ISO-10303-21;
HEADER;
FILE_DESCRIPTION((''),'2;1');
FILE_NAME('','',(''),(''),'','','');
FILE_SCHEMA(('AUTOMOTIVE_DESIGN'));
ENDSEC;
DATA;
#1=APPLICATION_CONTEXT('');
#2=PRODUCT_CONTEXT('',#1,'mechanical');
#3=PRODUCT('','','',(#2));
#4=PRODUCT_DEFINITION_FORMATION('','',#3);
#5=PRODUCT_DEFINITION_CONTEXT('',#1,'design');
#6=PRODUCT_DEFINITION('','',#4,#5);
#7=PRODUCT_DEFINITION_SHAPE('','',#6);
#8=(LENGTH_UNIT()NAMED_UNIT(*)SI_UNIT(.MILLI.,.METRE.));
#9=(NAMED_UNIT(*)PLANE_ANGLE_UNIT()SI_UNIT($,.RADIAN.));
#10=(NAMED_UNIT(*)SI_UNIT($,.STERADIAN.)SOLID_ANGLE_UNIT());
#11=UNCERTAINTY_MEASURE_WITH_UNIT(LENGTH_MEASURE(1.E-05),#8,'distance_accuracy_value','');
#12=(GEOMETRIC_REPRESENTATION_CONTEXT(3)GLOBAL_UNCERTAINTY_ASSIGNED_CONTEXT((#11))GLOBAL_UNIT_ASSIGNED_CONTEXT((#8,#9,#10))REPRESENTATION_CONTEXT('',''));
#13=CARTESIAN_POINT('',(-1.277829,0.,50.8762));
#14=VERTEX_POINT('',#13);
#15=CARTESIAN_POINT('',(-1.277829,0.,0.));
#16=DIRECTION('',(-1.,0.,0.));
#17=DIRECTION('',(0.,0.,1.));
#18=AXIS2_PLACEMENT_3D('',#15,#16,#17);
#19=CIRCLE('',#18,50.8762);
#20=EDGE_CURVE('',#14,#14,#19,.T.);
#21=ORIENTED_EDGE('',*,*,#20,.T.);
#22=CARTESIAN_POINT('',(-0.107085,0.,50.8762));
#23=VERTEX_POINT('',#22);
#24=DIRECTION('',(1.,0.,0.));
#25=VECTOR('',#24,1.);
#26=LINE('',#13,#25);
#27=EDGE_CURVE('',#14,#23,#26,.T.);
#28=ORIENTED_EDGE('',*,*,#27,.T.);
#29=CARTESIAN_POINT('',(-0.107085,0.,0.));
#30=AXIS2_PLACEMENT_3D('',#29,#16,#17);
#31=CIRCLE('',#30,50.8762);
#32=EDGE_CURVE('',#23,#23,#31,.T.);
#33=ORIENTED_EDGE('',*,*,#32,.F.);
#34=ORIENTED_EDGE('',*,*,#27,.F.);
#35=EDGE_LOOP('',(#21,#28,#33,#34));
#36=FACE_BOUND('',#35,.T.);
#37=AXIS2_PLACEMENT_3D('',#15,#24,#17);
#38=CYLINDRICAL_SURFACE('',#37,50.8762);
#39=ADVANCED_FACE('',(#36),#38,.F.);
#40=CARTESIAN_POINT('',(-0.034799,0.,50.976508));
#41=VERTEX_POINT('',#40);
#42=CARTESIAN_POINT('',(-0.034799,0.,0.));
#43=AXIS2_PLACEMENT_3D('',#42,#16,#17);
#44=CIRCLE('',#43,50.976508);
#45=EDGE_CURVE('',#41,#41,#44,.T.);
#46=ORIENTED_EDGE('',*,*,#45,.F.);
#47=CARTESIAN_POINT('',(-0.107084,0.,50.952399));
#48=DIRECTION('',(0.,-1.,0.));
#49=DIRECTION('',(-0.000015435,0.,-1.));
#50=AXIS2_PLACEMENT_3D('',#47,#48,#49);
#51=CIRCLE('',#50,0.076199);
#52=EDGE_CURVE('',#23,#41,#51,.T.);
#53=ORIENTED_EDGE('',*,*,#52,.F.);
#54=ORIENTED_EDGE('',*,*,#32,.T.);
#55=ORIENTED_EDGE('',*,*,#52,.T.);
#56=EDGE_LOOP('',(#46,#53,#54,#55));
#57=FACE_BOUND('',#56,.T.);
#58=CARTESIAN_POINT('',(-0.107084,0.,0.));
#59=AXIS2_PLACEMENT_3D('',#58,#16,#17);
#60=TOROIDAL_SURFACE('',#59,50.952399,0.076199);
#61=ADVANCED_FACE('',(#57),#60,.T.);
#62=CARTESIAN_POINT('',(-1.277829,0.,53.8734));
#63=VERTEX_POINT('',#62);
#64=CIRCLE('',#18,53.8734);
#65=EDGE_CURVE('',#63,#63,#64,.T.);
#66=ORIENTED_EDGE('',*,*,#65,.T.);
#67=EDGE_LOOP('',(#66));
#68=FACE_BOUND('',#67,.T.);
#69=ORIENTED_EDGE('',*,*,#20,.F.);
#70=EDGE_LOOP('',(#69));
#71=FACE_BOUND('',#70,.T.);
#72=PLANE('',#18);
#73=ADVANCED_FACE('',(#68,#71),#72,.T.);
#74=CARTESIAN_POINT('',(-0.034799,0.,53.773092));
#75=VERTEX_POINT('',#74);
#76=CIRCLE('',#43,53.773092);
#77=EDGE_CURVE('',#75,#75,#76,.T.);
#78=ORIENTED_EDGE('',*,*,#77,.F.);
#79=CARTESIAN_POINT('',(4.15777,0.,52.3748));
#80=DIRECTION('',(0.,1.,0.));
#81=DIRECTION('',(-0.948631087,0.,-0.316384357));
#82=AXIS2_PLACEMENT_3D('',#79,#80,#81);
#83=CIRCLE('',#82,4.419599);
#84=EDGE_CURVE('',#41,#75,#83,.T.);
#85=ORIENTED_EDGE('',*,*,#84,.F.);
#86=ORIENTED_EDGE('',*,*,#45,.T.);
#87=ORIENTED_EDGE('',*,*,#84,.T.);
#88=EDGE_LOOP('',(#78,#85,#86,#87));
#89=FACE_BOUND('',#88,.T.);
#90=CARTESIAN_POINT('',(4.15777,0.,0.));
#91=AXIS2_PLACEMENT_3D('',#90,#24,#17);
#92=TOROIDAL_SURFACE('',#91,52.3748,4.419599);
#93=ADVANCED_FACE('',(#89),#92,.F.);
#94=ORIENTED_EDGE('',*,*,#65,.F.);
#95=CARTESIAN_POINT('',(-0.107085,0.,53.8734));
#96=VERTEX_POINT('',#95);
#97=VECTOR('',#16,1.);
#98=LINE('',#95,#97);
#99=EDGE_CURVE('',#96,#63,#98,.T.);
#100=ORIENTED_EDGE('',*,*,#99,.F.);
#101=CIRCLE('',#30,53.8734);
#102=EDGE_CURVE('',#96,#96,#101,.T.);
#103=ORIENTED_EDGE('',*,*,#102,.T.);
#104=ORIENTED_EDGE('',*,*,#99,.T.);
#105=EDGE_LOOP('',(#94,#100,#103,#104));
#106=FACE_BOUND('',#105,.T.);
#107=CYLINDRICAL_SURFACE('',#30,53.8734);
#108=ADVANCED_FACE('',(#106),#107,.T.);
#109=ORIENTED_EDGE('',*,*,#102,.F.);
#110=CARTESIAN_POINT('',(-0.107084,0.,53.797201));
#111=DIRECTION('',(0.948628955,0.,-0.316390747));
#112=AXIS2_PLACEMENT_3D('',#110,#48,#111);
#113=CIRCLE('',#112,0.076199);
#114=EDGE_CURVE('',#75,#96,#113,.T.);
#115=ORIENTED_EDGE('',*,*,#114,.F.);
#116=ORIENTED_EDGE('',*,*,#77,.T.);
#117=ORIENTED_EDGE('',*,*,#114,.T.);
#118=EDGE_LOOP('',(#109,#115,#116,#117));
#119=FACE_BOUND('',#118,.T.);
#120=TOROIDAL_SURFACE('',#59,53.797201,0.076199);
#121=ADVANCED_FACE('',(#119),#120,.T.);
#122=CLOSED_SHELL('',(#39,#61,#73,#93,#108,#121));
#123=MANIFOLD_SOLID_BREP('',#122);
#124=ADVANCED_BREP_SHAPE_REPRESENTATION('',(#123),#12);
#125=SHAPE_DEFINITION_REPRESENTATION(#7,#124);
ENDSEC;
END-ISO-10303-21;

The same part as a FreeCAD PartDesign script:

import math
import FreeCAD as App
import Part
import Sketcher
from FreeCAD import Vector
Q = App.Units.Quantity

doc = App.newDocument("Part")
params = doc.addObject("Spreadsheet::Sheet", "Params")
for row, (alias, value) in enumerate([
    ("sketch1_radius", "0.003 in"),
    ("sketch1_radius2", "0.174 in"),
    ("sketch1_height", "0.118 in"),
    ("revolution_angle", "360 deg"),
], start=1):
    params.set(f"A{row}", alias)
    params.set(f"B{row}", "=" + value)
    params.setAlias(f"B{row}", alias)

body = doc.addObject("PartDesign::Body", "Body")

sketch1 = body.newObject("Sketcher::SketchObject", "Sketch")
sketch1.AttachmentSupport = (doc.getObject("XZ_Plane"), [""])
sketch1.MapMode = "FlatFace"
sketch1.addGeometry(Part.ArcOfCircle(Part.Circle(Vector(-0.11, 53.8, 0), Vector(0, 0, 1), 0.08), math.radians(-18), math.radians(90)), False)
sketch1.addGeometry(Part.LineSegment(Vector(-0.11, 53.87, 0), Vector(-1.28, 53.87, 0)), False)
sketch1.addGeometry(Part.LineSegment(Vector(-1.28, 53.87, 0), Vector(-1.28, 50.88, 0)), False)
sketch1.addGeometry(Part.LineSegment(Vector(-1.28, 50.88, 0), Vector(-0.11, 50.88, 0)), False)
sketch1.addGeometry(Part.ArcOfCircle(Part.Circle(Vector(-0.11, 50.95, 0), Vector(0, 0, 1), 0.08), math.radians(-90), math.radians(18)), False)
sketch1.addGeometry(Part.ArcOfCircle(Part.Circle(Vector(4.16, 52.37, 0), Vector(0, 0, 1), 4.42), math.radians(162), math.radians(198)), False)
sketch1.addConstraint(Sketcher.Constraint("Coincident", 0, 2, 1, 1))
sketch1.addConstraint(Sketcher.Constraint("Coincident", 1, 2, 2, 1))
sketch1.addConstraint(Sketcher.Constraint("Coincident", 2, 2, 3, 1))
sketch1.addConstraint(Sketcher.Constraint("Coincident", 3, 2, 4, 1))
sketch1.addConstraint(Sketcher.Constraint("Coincident", 4, 2, 5, 2))
sketch1.addConstraint(Sketcher.Constraint("Coincident", 5, 1, 0, 1))
sketch1.addConstraint(Sketcher.Constraint("Horizontal", 1))
sketch1.addConstraint(Sketcher.Constraint("Vertical", 2))
sketch1.addConstraint(Sketcher.Constraint("Horizontal", 3))
sketch1.addConstraint(Sketcher.Constraint("Equal", 0, 4))
sketch1.addConstraint(Sketcher.Constraint("Vertical", 0, 3, 4, 3))
sketch1.addConstraint(Sketcher.Constraint("Vertical", 4, 3, 0, 2))
sketch1.addConstraint(Sketcher.Constraint("Vertical", 0, 2, 3, 2))
sketch1.addConstraint(Sketcher.Constraint("Vertical", 4, 2, 5, 1))
sketch1.addConstraint(Sketcher.Constraint("Radius", 0, Q("0.003 in")))
sketch1.addConstraint(Sketcher.Constraint("Radius", 5, Q("0.174 in")))
sketch1.addConstraint(Sketcher.Constraint("DistanceY", 2, 2, 2, 1, Q("0.118 in")))
sketch1.addConstraint(Sketcher.Constraint("DistanceY", -1, 1, 0, 3, Q("2.118 in")))
sketch1.addConstraint(Sketcher.Constraint("DistanceX", 1, 2, 5, 3, Q("0.214 in")))
sketch1.addConstraint(Sketcher.Constraint("DistanceX", 4, 2, -1, 1, Q("0.034799 mm")))
sketch1.addConstraint(Sketcher.Constraint("DistanceX", -1, 1, 5, 3, Q("4.15777 mm")))
sketch1.setExpression("Constraints[14]", "Params.sketch1_radius")
sketch1.setExpression("Constraints[15]", "Params.sketch1_radius2")
sketch1.setExpression("Constraints[16]", "Params.sketch1_height")
revolution = body.newObject("PartDesign::Revolution", "Revolution")
revolution.Profile = sketch1
revolution.ReferenceAxis = (sketch1, ["H_Axis"])
revolution.setExpression("Angle", "Params.revolution_angle")

doc.recompute()
